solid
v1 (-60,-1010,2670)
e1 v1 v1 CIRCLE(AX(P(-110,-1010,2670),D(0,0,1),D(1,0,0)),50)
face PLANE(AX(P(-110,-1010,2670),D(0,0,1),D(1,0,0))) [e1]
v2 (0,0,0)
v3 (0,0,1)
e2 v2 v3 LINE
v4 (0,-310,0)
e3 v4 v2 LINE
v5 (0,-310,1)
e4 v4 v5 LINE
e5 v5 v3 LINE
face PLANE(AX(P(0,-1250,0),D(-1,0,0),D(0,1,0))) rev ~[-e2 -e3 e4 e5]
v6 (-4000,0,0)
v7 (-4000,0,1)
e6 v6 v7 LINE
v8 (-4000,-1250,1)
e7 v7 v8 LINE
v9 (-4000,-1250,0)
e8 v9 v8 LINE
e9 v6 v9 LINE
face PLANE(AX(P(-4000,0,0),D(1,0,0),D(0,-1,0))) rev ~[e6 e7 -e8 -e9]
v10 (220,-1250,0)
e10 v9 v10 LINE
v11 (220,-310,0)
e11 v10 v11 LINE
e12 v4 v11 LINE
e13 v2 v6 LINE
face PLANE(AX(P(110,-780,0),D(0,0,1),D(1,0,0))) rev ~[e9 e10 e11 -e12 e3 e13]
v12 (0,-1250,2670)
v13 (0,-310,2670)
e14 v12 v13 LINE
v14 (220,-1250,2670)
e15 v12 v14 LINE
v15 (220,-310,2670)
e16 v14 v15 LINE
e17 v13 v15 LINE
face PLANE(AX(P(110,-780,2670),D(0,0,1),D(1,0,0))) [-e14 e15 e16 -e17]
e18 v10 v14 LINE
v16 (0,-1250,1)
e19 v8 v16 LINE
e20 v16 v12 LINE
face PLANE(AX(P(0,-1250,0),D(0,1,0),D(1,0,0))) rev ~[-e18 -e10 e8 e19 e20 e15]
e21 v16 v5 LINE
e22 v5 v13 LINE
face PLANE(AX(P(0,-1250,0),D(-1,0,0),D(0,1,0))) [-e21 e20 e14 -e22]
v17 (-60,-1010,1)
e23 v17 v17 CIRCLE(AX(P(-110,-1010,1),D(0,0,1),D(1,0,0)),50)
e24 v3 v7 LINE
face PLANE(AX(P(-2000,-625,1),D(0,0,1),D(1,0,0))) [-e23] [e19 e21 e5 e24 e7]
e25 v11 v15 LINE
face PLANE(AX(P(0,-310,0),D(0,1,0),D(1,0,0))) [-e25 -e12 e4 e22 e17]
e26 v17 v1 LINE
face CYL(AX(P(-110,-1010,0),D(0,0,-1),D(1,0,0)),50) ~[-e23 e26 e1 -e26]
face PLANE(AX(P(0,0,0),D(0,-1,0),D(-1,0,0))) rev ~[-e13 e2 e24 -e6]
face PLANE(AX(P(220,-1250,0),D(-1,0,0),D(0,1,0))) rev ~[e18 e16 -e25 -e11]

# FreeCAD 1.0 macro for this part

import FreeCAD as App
import Part
import Sketcher
from FreeCAD import Vector
Q = App.Units.Quantity

doc = App.newDocument("Part")
body = doc.addObject("PartDesign::Body", "Body")

sketch1 = doc.addObject("Sketcher::SketchObject", "Sketch")
body.addObject(sketch1)
sketch1.AttachmentSupport = (doc.XY_Plane, [""])
sketch1.MapMode = "FlatFace"
sketch1.addGeometry([
    Part.LineSegment(Vector(0, 0, 0), Vector(-4000, 0, 0)),
    Part.LineSegment(Vector(-4000, 0, 0), Vector(-4000, -1250, 0)),
    Part.LineSegment(Vector(-4000, -1250, 0), Vector(0, -1250, 0)),
    Part.LineSegment(Vector(0, -1250, 0), Vector(0, 0, 0)),
    Part.Circle(Vector(-110, -1010, 0), Vector(0, 0, 1), 50),
], False)
sketch1.addConstraint([
    Sketcher.Constraint("Coincident", 0, 2, 1, 1),
    Sketcher.Constraint("Coincident", 1, 2, 2, 1),
    Sketcher.Constraint("Coincident", 2, 2, 3, 1),
    Sketcher.Constraint("Coincident", 3, 2, 0, 1),
    Sketcher.Constraint("Horizontal", 0),
    Sketcher.Constraint("Vertical", 1),
    Sketcher.Constraint("Horizontal", 2),
    Sketcher.Constraint("Vertical", 3),
    Sketcher.Constraint("Coincident", 3, 2, -1, 1),
    Sketcher.Constraint("Diameter", 4, Q("100 mm")),
    Sketcher.Constraint("DistanceX", 0, 2, 0, 1, Q("4000 mm")),
    Sketcher.Constraint("DistanceY", 1, 2, 1, 1, Q("1250 mm")),
    Sketcher.Constraint("DistanceX", 4, 3, -1, 1, Q("110 mm")),
    Sketcher.Constraint("DistanceY", 4, 3, -1, 1, Q("1010 mm")),
])
pad1 = doc.addObject("PartDesign::Pad", "Pad")
body.addObject(pad1)
pad1.Profile = sketch1
pad1.Length = 1

sketch2 = doc.addObject("Sketcher::SketchObject", "Sketch001")
body.addObject(sketch2)
sketch2.AttachmentSupport = (doc.XY_Plane, [""])
sketch2.MapMode = "FlatFace"
sketch2.addGeometry([
    Part.LineSegment(Vector(0, -310, 0), Vector(0, -1250, 0)),
    Part.LineSegment(Vector(0, -1250, 0), Vector(220, -1250, 0)),
    Part.LineSegment(Vector(220, -1250, 0), Vector(220, -310, 0)),
    Part.LineSegment(Vector(220, -310, 0), Vector(0, -310, 0)),
    Part.Circle(Vector(-110, -1010, 0), Vector(0, 0, 1), 50),
], False)
sketch2.addConstraint([
    Sketcher.Constraint("Coincident", 0, 2, 1, 1),
    Sketcher.Constraint("Coincident", 1, 2, 2, 1),
    Sketcher.Constraint("Coincident", 2, 2, 3, 1),
    Sketcher.Constraint("Coincident", 3, 2, 0, 1),
    Sketcher.Constraint("Vertical", 0),
    Sketcher.Constraint("Horizontal", 1),
    Sketcher.Constraint("Vertical", 2),
    Sketcher.Constraint("Horizontal", 3),
    Sketcher.Constraint("PointOnObject", 0, 2, -2),
    Sketcher.Constraint("Diameter", 4, Q("100 mm")),
    Sketcher.Constraint("DistanceX", 1, 1, 1, 2, Q("220 mm")),
    Sketcher.Constraint("DistanceY", 0, 2, 0, 1, Q("940 mm")),
    Sketcher.Constraint("DistanceX", 4, 3, -1, 1, Q("110 mm")),
    Sketcher.Constraint("DistanceY", 4, 3, -1, 1, Q("1010 mm")),
    Sketcher.Constraint("DistanceY", 0, 2, -1, 1, Q("1250 mm")),
])
pad2 = doc.addObject("PartDesign::Pad", "Pad001")
body.addObject(pad2)
pad2.Profile = sketch2
pad2.Length = 2670

doc.recompute()
